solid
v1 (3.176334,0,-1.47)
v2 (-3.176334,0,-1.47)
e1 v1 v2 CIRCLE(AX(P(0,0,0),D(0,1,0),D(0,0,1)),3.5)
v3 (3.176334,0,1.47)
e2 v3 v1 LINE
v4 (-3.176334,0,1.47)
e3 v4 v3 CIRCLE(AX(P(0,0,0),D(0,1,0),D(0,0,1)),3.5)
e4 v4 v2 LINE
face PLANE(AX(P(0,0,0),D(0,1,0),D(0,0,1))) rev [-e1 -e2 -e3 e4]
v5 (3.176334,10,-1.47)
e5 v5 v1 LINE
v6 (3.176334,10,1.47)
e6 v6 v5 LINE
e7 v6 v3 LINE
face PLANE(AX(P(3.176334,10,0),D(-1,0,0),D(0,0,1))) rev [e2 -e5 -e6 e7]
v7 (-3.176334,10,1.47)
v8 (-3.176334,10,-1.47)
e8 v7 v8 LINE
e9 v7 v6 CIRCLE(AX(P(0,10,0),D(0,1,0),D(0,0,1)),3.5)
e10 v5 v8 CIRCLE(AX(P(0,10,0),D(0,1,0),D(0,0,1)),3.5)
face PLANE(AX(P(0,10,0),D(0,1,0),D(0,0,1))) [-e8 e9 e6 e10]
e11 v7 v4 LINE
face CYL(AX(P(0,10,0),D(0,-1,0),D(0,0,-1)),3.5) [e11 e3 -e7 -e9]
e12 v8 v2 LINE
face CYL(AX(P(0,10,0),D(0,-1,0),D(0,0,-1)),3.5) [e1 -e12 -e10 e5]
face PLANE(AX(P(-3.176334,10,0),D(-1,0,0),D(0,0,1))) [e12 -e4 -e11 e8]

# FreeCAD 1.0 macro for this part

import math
import FreeCAD as App
import Part
import Sketcher
Q = App.Units.Quantity

doc = App.newDocument("Part")
body = doc.addObject("PartDesign::Body", "Body")

sketch1 = body.newObject("Sketcher::SketchObject", "Sketch")
sketch1.AttachmentSupport = (doc.getObject("XZ_Plane"), [""])
sketch1.MapMode = "FlatFace"
sketch1.addGeometry([
    Part.LineSegment(App.Vector(-3.2, -1.5, 0), App.Vector(-3.2, 1.5, 0)),
    Part.ArcOfCircle(Part.Circle(App.Vector(0, 0, 0), App.Vector(0, 0, 1), 3.5), math.radians(25), math.radians(155)),
    Part.LineSegment(App.Vector(3.2, 1.5, 0), App.Vector(3.2, -1.5, 0)),
    Part.ArcOfCircle(Part.Circle(App.Vector(0, 0, 0), App.Vector(0, 0, 1), 3.5), math.radians(-155), math.radians(-25)),
], False)
sketch1.addConstraint([
    Sketcher.Constraint("Coincident", 0, 2, 1, 2),
    Sketcher.Constraint("Coincident", 1, 1, 2, 1),
    Sketcher.Constraint("Coincident", 2, 2, 3, 2),
    Sketcher.Constraint("Coincident", 3, 1, 0, 1),
    Sketcher.Constraint("Vertical", 0),
    Sketcher.Constraint("Vertical", 2),
    Sketcher.Constraint("Coincident", 1, 3, -1, 1),
    Sketcher.Constraint("Coincident", 3, 3, -1, 1),
    Sketcher.Constraint("Equal", 1, 3),
    Sketcher.Constraint("Horizontal", 0, 2, 1, 1),
    Sketcher.Constraint("Radius", 1, Q("3.5 mm")),
    Sketcher.Constraint("DistanceY", 0, 1, 0, 2, Q("2.94 mm")),
])
pad1 = body.newObject("PartDesign::Pad", "Pad")
pad1.Profile = sketch1
pad1.Length = 10
pad1.Reversed = True

doc.recompute()
